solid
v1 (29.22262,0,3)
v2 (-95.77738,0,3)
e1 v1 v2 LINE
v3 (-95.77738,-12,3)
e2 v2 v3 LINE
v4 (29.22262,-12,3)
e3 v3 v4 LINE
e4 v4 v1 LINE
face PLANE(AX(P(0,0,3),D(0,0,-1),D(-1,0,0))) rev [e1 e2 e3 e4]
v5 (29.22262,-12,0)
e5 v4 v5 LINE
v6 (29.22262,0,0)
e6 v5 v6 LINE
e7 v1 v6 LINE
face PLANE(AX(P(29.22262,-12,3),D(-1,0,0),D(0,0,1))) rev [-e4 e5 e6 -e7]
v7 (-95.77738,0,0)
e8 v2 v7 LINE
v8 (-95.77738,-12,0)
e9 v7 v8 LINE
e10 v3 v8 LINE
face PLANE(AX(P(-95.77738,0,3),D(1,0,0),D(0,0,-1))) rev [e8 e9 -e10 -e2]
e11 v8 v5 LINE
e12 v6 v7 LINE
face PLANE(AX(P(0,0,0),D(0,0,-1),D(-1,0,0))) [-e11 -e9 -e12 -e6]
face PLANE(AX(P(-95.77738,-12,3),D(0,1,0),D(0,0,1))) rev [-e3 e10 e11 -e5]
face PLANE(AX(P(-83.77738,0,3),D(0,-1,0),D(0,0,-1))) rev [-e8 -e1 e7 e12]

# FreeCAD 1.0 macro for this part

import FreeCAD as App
import Part
import Sketcher
from FreeCAD import Vector
Q = App.Units.Quantity


def add_polygon(sketch, points):
    """Adds a closed chain of lines whose ends are joined by coincident constraints."""
    first, n = sketch.GeometryCount, len(points)
    for a, b in zip(points, points[1:] + points[:1]):
        sketch.addGeometry(Part.LineSegment(App.Vector(*a, 0), App.Vector(*b, 0)), False)
    for i in range(n):
        sketch.addConstraint(Sketcher.Constraint("Coincident", first + i, 2, first + (i + 1) % n, 1))

doc = App.newDocument("Part")
params = doc.addObject("Spreadsheet::Sheet", "Params")
for row, (alias, value) in enumerate([
    ("sketch1_width", "125 mm"),
    ("sketch1_height", "12 mm"),
    ("pad1_length", "3 mm"),
], start=1):
    params.set(f"A{row}", alias)
    params.set(f"B{row}", "=" + value)
    params.setAlias(f"B{row}", alias)

body = doc.addObject("PartDesign::Body", "Body")

# Sketch on XY plane
sketch1 = doc.addObject("Sketcher::SketchObject", "Sketch")
body.addObject(sketch1)
sketch1.AttachmentSupport = (doc.XY_Plane, [""])
sketch1.MapMode = "FlatFace"
add_polygon(sketch1, [(-96, 0), (-96, -12), (29, -12), (29, 0)])  # lines 0-3
sketch1.addConstraint([
    Sketcher.Constraint("Vertical", 0),
    Sketcher.Constraint("Horizontal", 1),
    Sketcher.Constraint("Vertical", 2),
    Sketcher.Constraint("Horizontal", 3),
    Sketcher.Constraint("PointOnObject", 2, 2, -1),
    Sketcher.Constraint("DistanceX", 1, 1, 1, 2, Q("125 mm")),
    Sketcher.Constraint("DistanceY", 0, 2, 0, 1, Q("12 mm")),
    Sketcher.Constraint("DistanceX", 0, 2, -1, 1, Q("95.77738 mm")),
])
sketch1.setExpression("Constraints[9]", "Params.sketch1_width")
sketch1.setExpression("Constraints[10]", "Params.sketch1_height")
pad1 = doc.addObject("PartDesign::Pad", "Pad")
body.addObject(pad1)
pad1.Profile = sketch1
pad1.setExpression("Length", "Params.pad1_length")

doc.recompute()
